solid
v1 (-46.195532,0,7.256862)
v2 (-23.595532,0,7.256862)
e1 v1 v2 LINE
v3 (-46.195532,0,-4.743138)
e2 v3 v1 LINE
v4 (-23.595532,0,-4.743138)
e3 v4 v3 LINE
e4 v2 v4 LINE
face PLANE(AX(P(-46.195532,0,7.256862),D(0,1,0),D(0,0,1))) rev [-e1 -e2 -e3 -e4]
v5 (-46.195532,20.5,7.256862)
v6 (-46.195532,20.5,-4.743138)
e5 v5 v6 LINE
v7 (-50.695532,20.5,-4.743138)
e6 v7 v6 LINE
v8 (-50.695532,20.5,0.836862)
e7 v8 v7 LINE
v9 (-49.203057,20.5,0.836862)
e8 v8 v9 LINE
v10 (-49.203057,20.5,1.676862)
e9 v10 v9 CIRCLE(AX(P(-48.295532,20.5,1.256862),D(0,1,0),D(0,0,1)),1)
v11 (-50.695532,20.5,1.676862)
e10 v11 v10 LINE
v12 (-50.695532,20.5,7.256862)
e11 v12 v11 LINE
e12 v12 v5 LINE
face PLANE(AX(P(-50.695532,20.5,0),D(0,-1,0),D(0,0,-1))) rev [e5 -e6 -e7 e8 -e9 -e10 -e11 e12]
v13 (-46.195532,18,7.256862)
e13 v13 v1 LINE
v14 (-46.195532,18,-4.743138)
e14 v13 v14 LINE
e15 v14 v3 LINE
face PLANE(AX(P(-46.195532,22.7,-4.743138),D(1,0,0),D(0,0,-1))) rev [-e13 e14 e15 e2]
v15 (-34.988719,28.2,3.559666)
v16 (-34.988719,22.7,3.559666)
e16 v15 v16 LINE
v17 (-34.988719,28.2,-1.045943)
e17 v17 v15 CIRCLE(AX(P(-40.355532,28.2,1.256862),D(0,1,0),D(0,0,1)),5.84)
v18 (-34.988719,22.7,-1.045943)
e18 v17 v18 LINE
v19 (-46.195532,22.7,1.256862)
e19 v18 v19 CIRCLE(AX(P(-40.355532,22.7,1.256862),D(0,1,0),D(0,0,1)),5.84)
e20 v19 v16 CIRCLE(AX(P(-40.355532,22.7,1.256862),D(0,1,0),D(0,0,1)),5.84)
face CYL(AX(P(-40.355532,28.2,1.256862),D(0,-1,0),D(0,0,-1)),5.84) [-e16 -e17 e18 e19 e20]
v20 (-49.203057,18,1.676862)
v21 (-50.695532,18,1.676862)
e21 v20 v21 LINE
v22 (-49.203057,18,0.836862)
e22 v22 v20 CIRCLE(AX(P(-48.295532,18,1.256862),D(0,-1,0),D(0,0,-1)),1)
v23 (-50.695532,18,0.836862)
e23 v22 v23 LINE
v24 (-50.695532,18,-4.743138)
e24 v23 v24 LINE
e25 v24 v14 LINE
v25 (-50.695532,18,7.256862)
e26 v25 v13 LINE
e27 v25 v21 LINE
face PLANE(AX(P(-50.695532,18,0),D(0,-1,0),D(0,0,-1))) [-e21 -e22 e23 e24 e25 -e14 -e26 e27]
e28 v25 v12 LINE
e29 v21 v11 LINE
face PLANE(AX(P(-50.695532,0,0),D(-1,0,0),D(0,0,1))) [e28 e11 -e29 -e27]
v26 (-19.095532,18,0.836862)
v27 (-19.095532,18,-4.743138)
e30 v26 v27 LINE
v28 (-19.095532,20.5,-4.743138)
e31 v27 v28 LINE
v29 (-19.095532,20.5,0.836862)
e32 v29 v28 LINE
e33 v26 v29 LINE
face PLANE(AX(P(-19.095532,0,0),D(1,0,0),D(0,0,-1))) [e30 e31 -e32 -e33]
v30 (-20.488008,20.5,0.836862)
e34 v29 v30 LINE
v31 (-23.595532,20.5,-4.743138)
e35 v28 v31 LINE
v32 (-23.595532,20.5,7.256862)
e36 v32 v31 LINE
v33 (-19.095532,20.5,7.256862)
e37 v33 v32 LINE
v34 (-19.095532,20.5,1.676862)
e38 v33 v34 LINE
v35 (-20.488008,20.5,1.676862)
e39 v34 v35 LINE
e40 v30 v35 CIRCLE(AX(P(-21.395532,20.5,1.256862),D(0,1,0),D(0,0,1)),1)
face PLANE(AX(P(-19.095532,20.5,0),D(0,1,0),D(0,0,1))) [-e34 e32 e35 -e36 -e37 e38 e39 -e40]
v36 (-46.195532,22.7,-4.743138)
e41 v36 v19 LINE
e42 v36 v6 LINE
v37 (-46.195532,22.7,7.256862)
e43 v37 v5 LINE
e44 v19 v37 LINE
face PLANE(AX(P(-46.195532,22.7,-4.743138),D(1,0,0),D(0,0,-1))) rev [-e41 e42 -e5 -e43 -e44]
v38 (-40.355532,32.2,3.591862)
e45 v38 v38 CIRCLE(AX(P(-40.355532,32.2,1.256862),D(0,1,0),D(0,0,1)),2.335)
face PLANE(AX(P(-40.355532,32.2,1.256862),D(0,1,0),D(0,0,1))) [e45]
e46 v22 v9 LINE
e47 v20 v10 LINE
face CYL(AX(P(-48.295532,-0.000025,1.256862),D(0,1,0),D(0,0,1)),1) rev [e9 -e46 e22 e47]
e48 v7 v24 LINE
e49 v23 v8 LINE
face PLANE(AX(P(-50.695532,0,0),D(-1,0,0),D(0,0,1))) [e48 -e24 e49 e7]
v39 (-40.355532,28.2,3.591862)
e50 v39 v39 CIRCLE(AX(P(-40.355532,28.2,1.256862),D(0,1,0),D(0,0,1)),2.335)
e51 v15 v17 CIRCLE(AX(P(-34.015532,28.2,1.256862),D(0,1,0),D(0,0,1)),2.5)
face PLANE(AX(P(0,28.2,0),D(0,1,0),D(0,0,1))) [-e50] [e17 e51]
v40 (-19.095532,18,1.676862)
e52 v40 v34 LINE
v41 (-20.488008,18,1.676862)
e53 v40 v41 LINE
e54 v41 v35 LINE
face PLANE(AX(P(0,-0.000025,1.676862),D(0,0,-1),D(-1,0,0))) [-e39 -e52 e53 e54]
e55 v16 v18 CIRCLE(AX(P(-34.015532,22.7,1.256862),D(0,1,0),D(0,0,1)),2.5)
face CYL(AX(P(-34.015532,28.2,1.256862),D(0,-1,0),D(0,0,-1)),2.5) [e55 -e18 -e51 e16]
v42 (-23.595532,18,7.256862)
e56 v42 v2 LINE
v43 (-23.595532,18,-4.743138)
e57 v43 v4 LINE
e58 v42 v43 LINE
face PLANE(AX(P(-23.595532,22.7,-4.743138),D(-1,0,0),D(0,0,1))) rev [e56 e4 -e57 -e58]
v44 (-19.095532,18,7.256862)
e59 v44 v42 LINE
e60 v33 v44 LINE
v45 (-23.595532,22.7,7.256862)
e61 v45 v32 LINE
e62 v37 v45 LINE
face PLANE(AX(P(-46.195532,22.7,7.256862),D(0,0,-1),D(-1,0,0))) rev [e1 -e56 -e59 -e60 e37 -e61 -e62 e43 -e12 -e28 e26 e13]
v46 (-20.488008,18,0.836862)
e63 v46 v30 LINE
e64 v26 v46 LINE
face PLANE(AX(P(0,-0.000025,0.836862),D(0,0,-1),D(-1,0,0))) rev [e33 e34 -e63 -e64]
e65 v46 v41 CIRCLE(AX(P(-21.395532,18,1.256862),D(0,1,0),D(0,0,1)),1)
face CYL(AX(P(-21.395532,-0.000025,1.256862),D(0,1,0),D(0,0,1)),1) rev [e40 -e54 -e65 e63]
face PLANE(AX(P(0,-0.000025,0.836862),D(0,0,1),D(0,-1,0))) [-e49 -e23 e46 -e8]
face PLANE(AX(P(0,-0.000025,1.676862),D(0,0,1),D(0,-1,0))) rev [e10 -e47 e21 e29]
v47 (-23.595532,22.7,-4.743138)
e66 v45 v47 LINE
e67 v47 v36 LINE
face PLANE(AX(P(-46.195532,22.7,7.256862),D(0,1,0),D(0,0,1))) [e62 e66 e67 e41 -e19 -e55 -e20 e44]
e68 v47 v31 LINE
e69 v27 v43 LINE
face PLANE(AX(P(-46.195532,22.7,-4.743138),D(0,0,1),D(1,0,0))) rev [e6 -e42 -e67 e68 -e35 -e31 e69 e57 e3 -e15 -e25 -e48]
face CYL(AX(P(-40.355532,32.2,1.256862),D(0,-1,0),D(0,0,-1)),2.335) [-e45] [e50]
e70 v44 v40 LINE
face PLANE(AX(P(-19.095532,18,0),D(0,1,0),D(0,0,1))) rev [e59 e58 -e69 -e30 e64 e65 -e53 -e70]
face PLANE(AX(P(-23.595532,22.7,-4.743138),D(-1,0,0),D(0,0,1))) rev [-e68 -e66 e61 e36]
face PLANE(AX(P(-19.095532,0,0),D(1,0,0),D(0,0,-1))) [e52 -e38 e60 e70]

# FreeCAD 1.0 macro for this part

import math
import FreeCAD as App
import Part
import Sketcher


def add_polygon(sketch, points):
    """Adds a closed chain of lines whose ends are joined by coincident constraints."""
    first, n = sketch.GeometryCount, len(points)
    for a, b in zip(points, points[1:] + points[:1]):
        sketch.addGeometry(Part.LineSegment(App.Vector(*a, 0), App.Vector(*b, 0)), False)
    for i in range(n):
        sketch.addConstraint(Sketcher.Constraint("Coincident", first + i, 2, first + (i + 1) % n, 1))

doc = App.newDocument("Part")
body = doc.addObject("PartDesign::Body", "Body")

sketch1 = body.newObject("Sketcher::SketchObject", "Sketch")
sketch1.AttachmentSupport = (doc.getObject("XZ_Plane"), [""])
sketch1.MapMode = "FlatFace"
add_polygon(sketch1, [(-46, -5), (-46, 7), (-24, 7), (-24, -5)])
sketch1.addConstraint([
    Sketcher.Constraint("Vertical", 0),
    Sketcher.Constraint("Horizontal", 1),
    Sketcher.Constraint("Vertical", 2),
    Sketcher.Constraint("Horizontal", 3),
    Sketcher.Constraint("DistanceY", 0, 1, 0, 2, 12.0),
    Sketcher.Constraint("DistanceX", 1, 1, 1, 2, 22.6),
    Sketcher.Constraint("DistanceY", -1, 1, 0, 2, 7.256862),
    Sketcher.Constraint("DistanceX", 0, 2, -1, 1, 46.195532),
])
pad1 = body.newObject("PartDesign::Pad", "Pad")
pad1.Profile = sketch1
pad1.Length = 22.7
pad1.Reversed = True

sketch2 = body.newObject("Sketcher::SketchObject", "Sketch001")
sketch2.AttachmentSupport = (doc.getObject("XZ_Plane"), [""])
sketch2.MapMode = "FlatFace"
sketch2.AttachmentOffset = App.Placement(App.Vector(0, 0, -22.7), App.Rotation())
sketch2.addGeometry(Part.Circle(App.Vector(-40, 1, 0), App.Vector(0, 0, 1), 6), False)
sketch2.addConstraint([
    Sketcher.Constraint("Diameter", 0, 11.68),
    Sketcher.Constraint("DistanceY", -1, 1, 0, 3, 1.256862),
    Sketcher.Constraint("DistanceX", 0, 3, -1, 1, 40.355532),
])
pad2 = body.newObject("PartDesign::Pad", "Pad001")
pad2.Profile = sketch2
pad2.Length = 5.5
pad2.Reversed = True

sketch3 = body.newObject("Sketcher::SketchObject", "Sketch002")
sketch3.AttachmentSupport = (doc.getObject("XZ_Plane"), [""])
sketch3.MapMode = "FlatFace"
sketch3.AttachmentOffset = App.Placement(App.Vector(0, 0, -28.2), App.Rotation())
sketch3.addGeometry(Part.Circle(App.Vector(-40.4, 1.3, 0), App.Vector(0, 0, 1), 2.3), False)
sketch3.addConstraint([
    Sketcher.Constraint("Diameter", 0, 4.67),
    Sketcher.Constraint("DistanceY", -1, 1, 0, 3, 1.256862),
    Sketcher.Constraint("DistanceX", 0, 3, -1, 1, 40.355532),
])
pad3 = body.newObject("PartDesign::Pad", "Pad002")
pad3.Profile = sketch3
pad3.Length = 4
pad3.Reversed = True

sketch4 = body.newObject("Sketcher::SketchObject", "Sketch003")
sketch4.AttachmentSupport = (doc.getObject("XZ_Plane"), [""])
sketch4.MapMode = "FlatFace"
sketch4.AttachmentOffset = App.Placement(App.Vector(0, 0, -22.7), App.Rotation())
sketch4.addGeometry(Part.Circle(App.Vector(-34, 1.3, 0), App.Vector(0, 0, 1), 2.5), False)
sketch4.addConstraint([
    Sketcher.Constraint("Diameter", 0, 5.0),
    Sketcher.Constraint("DistanceY", -1, 1, 0, 3, 1.256862),
    Sketcher.Constraint("DistanceX", 0, 3, -1, 1, 34.015532),
])
pad4 = body.newObject("PartDesign::Pad", "Pad003")
pad4.Profile = sketch4
pad4.Length = 5.5
pad4.Reversed = True

sketch5 = body.newObject("Sketcher::SketchObject", "Sketch004")
sketch5.AttachmentSupport = (doc.getObject("YZ_Plane"), [""])
sketch5.MapMode = "FlatFace"
sketch5.AttachmentOffset = App.Placement(App.Vector(0, 0, -23.595532), App.Rotation())
add_polygon(sketch5, [(20.5, 7.3), (18, 7.3), (18, -4.7), (20.5, -4.7)])
sketch5.addConstraint([
    Sketcher.Constraint("Horizontal", 0),
    Sketcher.Constraint("Vertical", 1),
    Sketcher.Constraint("Horizontal", 2),
    Sketcher.Constraint("Vertical", 3),
    Sketcher.Constraint("DistanceY", 1, 2, 1, 1, 12.0),
    Sketcher.Constraint("DistanceX", 0, 2, 0, 1, 2.5),
    Sketcher.Constraint("DistanceX", -1, 1, 0, 2, 18.0),
    Sketcher.Constraint("DistanceY", -1, 1, 0, 2, 7.256862),
])
pad5 = body.newObject("PartDesign::Pad", "Pad004")
pad5.Profile = sketch5
pad5.Length = 4.5

sketch6 = body.newObject("Sketcher::SketchObject", "Sketch005")
sketch6.AttachmentSupport = (doc.getObject("XZ_Plane"), [""])
sketch6.MapMode = "FlatFace"
sketch6.AttachmentOffset = App.Placement(App.Vector(0, 0, -20.5), App.Rotation())
sketch6.addGeometry([
    Part.ArcOfCircle(Part.Circle(App.Vector(-21.4, 1.3, 0), App.Vector(0, 0, 1), 1), math.radians(25), math.radians(335)),
    Part.LineSegment(App.Vector(-20.5, 1.7, 0), App.Vector(-19.1, 1.7, 0)),
    Part.LineSegment(App.Vector(-19.1, 1.7, 0), App.Vector(-19.1, 0.8, 0)),
    Part.LineSegment(App.Vector(-19.1, 0.8, 0), App.Vector(-20.5, 0.8, 0)),
    Part.Circle(App.Vector(-48.4, 1.3, 0), App.Vector(0, 0, 1), 1),
], False)
sketch6.addConstraint([
    Sketcher.Constraint("Coincident", 0, 1, 1, 1),
    Sketcher.Constraint("Coincident", 1, 2, 2, 1),
    Sketcher.Constraint("Coincident", 2, 2, 3, 1),
    Sketcher.Constraint("Coincident", 3, 2, 0, 2),
    Sketcher.Constraint("Horizontal", 1),
    Sketcher.Constraint("Vertical", 2),
    Sketcher.Constraint("Horizontal", 3),
    Sketcher.Constraint("Equal", 0, 4),
    Sketcher.Constraint("Horizontal", 0, 3, 4, 3),
    Sketcher.Constraint("Vertical", 0, 1, 3, 2),
    Sketcher.Constraint("Diameter", 4, 2.0),
    Sketcher.Constraint("DistanceX", 4, 3, 0, 3, 27.0),
    Sketcher.Constraint("DistanceY", 2, 2, 2, 1, 0.84),
    Sketcher.Constraint("DistanceX", 0, 3, 1, 2, 2.3),
    Sketcher.Constraint("DistanceY", -1, 1, 0, 3, 1.256862),
    Sketcher.Constraint("DistanceX", 0, 1, -1, 1, 20.488008),
])
pocket1 = body.newObject("PartDesign::Pocket", "Pocket")
pocket1.Profile = sketch6
pocket1.Type = "ThroughAll"
pocket1.Reversed = True

sketch7 = body.newObject("Sketcher::SketchObject", "Sketch006")
sketch7.AttachmentSupport = (doc.getObject("YZ_Plane"), [""])
sketch7.MapMode = "FlatFace"
sketch7.AttachmentOffset = App.Placement(App.Vector(0, 0, -46.195532), App.Rotation())
add_polygon(sketch7, [(20.5, -4.7), (18, -4.7), (18, 7.3), (20.5, 7.3)])
sketch7.addConstraint([
    Sketcher.Constraint("Horizontal", 0),
    Sketcher.Constraint("Vertical", 1),
    Sketcher.Constraint("Horizontal", 2),
    Sketcher.Constraint("Vertical", 3),
    Sketcher.Constraint("DistanceY", 1, 1, 1, 2, 12.0),
    Sketcher.Constraint("DistanceX", 0, 2, 0, 1, 2.5),
    Sketcher.Constraint("DistanceX", -1, 1, 0, 2, 18.0),
    Sketcher.Constraint("DistanceY", 0, 2, -1, 1, 4.743138),
])
pad6 = body.newObject("PartDesign::Pad", "Pad005")
pad6.Profile = sketch7
pad6.Length = 4.5
pad6.Reversed = True

sketch8 = body.newObject("Sketcher::SketchObject", "Sketch007")
sketch8.AttachmentSupport = (doc.getObject("XZ_Plane"), [""])
sketch8.MapMode = "FlatFace"
sketch8.AttachmentOffset = App.Placement(App.Vector(0, 0, -20.5), App.Rotation())
sketch8.addGeometry([
    Part.LineSegment(App.Vector(-49.2, 0.8, 0), App.Vector(-50.7, 0.8, 0)),
    Part.LineSegment(App.Vector(-50.7, 0.8, 0), App.Vector(-50.7, 1.7, 0)),
    Part.LineSegment(App.Vector(-50.7, 1.7, 0), App.Vector(-49.2, 1.7, 0)),
    Part.ArcOfCircle(Part.Circle(App.Vector(-48.3, 1.3, 0), App.Vector(0, 0, 1), 1), math.radians(-155), math.radians(155)),
], False)
sketch8.addConstraint([
    Sketcher.Constraint("Coincident", 0, 2, 1, 1),
    Sketcher.Constraint("Coincident", 1, 2, 2, 1),
    Sketcher.Constraint("Coincident", 2, 2, 3, 2),
    Sketcher.Constraint("Coincident", 3, 1, 0, 1),
    Sketcher.Constraint("Horizontal", 0),
    Sketcher.Constraint("Vertical", 1),
    Sketcher.Constraint("Horizontal", 2),
    Sketcher.Constraint("Vertical", 2, 2, 3, 1),
    Sketcher.Constraint("Radius", 3, 1.0),
    Sketcher.Constraint("DistanceY", 1, 1, 1, 2, 0.84),
    Sketcher.Constraint("DistanceX", 0, 2, 3, 3, 2.4),
    Sketcher.Constraint("DistanceY", -1, 1, 3, 3, 1.256862),
    Sketcher.Constraint("DistanceX", 3, 3, -1, 1, 48.295532),
])
pocket2 = body.newObject("PartDesign::Pocket", "Pocket001")
pocket2.Profile = sketch8
pocket2.Type = "ThroughAll"
pocket2.Reversed = True

doc.recompute()
